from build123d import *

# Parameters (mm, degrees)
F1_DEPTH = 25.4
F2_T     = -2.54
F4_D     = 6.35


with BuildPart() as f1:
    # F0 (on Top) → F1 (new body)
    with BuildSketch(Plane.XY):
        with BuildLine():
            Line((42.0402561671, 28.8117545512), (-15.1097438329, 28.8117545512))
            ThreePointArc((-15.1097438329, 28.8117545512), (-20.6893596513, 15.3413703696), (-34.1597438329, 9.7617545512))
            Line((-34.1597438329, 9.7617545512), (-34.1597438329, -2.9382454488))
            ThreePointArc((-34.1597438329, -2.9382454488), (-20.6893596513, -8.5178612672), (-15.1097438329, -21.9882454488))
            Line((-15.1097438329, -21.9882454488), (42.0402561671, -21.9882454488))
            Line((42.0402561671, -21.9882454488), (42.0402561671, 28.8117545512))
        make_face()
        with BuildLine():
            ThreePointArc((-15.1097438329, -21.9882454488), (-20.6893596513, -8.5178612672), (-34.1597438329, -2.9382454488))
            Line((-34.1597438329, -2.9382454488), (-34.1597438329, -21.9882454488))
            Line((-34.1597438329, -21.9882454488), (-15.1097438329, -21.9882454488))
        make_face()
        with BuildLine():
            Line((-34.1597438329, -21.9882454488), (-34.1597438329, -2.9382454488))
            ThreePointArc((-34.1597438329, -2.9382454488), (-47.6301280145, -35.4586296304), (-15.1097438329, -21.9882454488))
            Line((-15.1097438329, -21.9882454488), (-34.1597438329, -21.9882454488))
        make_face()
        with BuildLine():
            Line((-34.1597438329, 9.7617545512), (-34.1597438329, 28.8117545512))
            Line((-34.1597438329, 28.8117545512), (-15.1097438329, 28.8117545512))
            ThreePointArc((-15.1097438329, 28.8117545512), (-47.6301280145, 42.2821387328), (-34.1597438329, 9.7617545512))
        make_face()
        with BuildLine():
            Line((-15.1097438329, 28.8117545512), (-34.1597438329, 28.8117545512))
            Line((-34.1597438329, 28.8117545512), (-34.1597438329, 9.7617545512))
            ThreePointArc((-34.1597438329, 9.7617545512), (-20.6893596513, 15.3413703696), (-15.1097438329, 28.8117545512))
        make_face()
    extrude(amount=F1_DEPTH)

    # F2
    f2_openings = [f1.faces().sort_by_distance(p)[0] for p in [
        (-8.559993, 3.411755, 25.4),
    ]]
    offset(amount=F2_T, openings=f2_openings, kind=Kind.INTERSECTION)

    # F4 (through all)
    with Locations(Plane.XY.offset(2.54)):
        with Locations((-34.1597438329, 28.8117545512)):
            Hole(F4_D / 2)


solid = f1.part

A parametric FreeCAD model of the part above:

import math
import FreeCAD as App
import Part
import Sketcher
Q = App.Units.Quantity


def faces_at(feature, points):
    """Names of the faces that lie closest to the given points."""
    faces = feature.Shape.Faces
    near = lambda p: min(range(len(faces)), key=lambda i: faces[i].distToShape(Part.Vertex(*p))[0])
    return sorted({f"Face{near(p) + 1}" for p in points})

doc = App.newDocument("Part")
body = doc.addObject("PartDesign::Body", "Body")

sketch1 = doc.addObject("Sketcher::SketchObject", "Sketch")
body.addObject(sketch1)
sketch1.AttachmentSupport = (doc.XY_Plane, [""])
sketch1.MapMode = "FlatFace"
sketch1.addGeometry(Part.LineSegment(App.Vector(42, 29, 0), App.Vector(-15, 29, 0)), False)
sketch1.addGeometry(Part.ArcOfCircle(Part.Circle(App.Vector(-34, 29, 0), App.Vector(0, 0, 1), 19), math.radians(0), math.radians(270)), False)
sketch1.addGeometry(Part.LineSegment(App.Vector(-34, 10, 0), App.Vector(-34, -3, 0)), False)
sketch1.addGeometry(Part.ArcOfCircle(Part.Circle(App.Vector(-34, -22, 0), App.Vector(0, 0, 1), 19), math.radians(90), math.radians(360)), False)
sketch1.addGeometry(Part.LineSegment(App.Vector(-15, -22, 0), App.Vector(42, -22, 0)), False)
sketch1.addGeometry(Part.LineSegment(App.Vector(42, -22, 0), App.Vector(42, 29, 0)), False)
sketch1.addConstraint(Sketcher.Constraint("Coincident", 0, 2, 1, 1))
sketch1.addConstraint(Sketcher.Constraint("Coincident", 1, 2, 2, 1))
sketch1.addConstraint(Sketcher.Constraint("Coincident", 2, 2, 3, 1))
sketch1.addConstraint(Sketcher.Constraint("Coincident", 3, 2, 4, 1))
sketch1.addConstraint(Sketcher.Constraint("Coincident", 4, 2, 5, 1))
sketch1.addConstraint(Sketcher.Constraint("Coincident", 5, 2, 0, 1))
sketch1.addConstraint(Sketcher.Constraint("Horizontal", 0))
sketch1.addConstraint(Sketcher.Constraint("Vertical", 2))
sketch1.addConstraint(Sketcher.Constraint("Horizontal", 4))
sketch1.addConstraint(Sketcher.Constraint("Vertical", 5))
sketch1.addConstraint(Sketcher.Constraint("Equal", 1, 3))
sketch1.addConstraint(Sketcher.Constraint("Horizontal", 1, 3, 0, 2))
sketch1.addConstraint(Sketcher.Constraint("Vertical", 1, 3, 3, 3))
sketch1.addConstraint(Sketcher.Constraint("Vertical", 3, 3, 1, 2))
sketch1.addConstraint(Sketcher.Constraint("DistanceY", 5, 1, 5, 2, Q("2 in")))
sketch1.addConstraint(Sketcher.Constraint("Radius", 1, Q("0.75 in")))
sketch1.addConstraint(Sketcher.Constraint("DistanceY", 2, 2, 2, 1, Q("0.5 in")))
sketch1.addConstraint(Sketcher.Constraint("DistanceX", 3, 3, 4, 2, Q("3 in")))
sketch1.addConstraint(Sketcher.Constraint("DistanceX", 1, 3, -1, 1, Q("34.159744 mm")))
sketch1.addConstraint(Sketcher.Constraint("DistanceY", -1, 1, 1, 3, Q("28.811755 mm")))
pad1 = doc.addObject("PartDesign::Pad", "Pad")
body.addObject(pad1)
pad1.Profile = sketch1
pad1.Length = Q("1 in")
doc.recompute()

thickness = doc.addObject("PartDesign::Thickness", "Thickness")
body.addObject(thickness)
thickness.Base = (pad1, faces_at(pad1, [(-5.585, 3.412, 25.4)]))
thickness.Value = Q("0.1 in")
thickness.Reversed = True
thickness.Join = "Intersection"

sketch2 = doc.addObject("Sketcher::SketchObject", "Sketch001")
body.addObject(sketch2)
sketch2.AttachmentSupport = (doc.XY_Plane, [""])
sketch2.MapMode = "FlatFace"
sketch2.AttachmentOffset = App.Placement(App.Vector(0, 0, 0.1 * 25.4), App.Rotation())
sketch2.addGeometry(Part.Circle(App.Vector(-34.2, 28.8, 0), App.Vector(0, 0, 1), 3.2), False)
sketch2.addConstraint(Sketcher.Constraint("Diameter", 0, Q("0.25 in")))
sketch2.addConstraint(Sketcher.Constraint("DistanceX", 0, 3, -1, 1, Q("34.159744 mm")))
sketch2.addConstraint(Sketcher.Constraint("DistanceY", -1, 1, 0, 3, Q("28.811755 mm")))
doc.recompute()
hole = doc.addObject("PartDesign::Hole", "Hole")
body.addObject(hole)
hole.Profile = sketch2
hole.ThreadType = "None"
hole.Diameter = Q("0.25 in")
hole.DepthType = "ThroughAll"

doc.recompute()
